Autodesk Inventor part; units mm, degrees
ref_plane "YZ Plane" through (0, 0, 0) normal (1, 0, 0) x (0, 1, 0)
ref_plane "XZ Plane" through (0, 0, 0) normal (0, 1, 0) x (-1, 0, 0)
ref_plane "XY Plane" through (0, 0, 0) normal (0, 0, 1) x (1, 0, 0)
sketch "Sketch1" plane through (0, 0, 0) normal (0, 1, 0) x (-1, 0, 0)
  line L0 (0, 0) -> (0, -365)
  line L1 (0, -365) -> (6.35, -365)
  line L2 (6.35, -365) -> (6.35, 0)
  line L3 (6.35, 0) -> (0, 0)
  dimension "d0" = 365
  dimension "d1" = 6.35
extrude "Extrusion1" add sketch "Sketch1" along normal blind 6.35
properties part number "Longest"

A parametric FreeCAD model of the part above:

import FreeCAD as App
import Part
import Sketcher
from FreeCAD import Vector
Q = App.Units.Quantity

doc = App.newDocument("Part")
body = doc.addObject("PartDesign::Body", "Body")

sketch1 = doc.addObject("Sketcher::SketchObject", "Sketch")
body.addObject(sketch1)
sketch1.AttachmentSupport = (doc.XZ_Plane, [""])
sketch1.MapMode = "FlatFace"
sketch1.addGeometry(Part.LineSegment(Vector(-6, 0, 0), Vector(0, 0, 0)), False)
sketch1.addGeometry(Part.LineSegment(Vector(0, 0, 0), Vector(0, -365, 0)), False)
sketch1.addGeometry(Part.LineSegment(Vector(0, -365, 0), Vector(-6, -365, 0)), False)
sketch1.addGeometry(Part.LineSegment(Vector(-6, -365, 0), Vector(-6, 0, 0)), False)
sketch1.addConstraint(Sketcher.Constraint("Coincident", 0, 2, 1, 1))
sketch1.addConstraint(Sketcher.Constraint("Coincident", 1, 2, 2, 1))
sketch1.addConstraint(Sketcher.Constraint("Coincident", 2, 2, 3, 1))
sketch1.addConstraint(Sketcher.Constraint("Coincident", 3, 2, 0, 1))
sketch1.addConstraint(Sketcher.Constraint("Horizontal", 0))
sketch1.addConstraint(Sketcher.Constraint("Vertical", 1))
sketch1.addConstraint(Sketcher.Constraint("Horizontal", 2))
sketch1.addConstraint(Sketcher.Constraint("Vertical", 3))
sketch1.addConstraint(Sketcher.Constraint("Coincident", 0, 2, -1, 1))
sketch1.addConstraint(Sketcher.Constraint("DistanceY", 1, 2, 1, 1, Q("365 mm")))
sketch1.addConstraint(Sketcher.Constraint("DistanceX", 0, 1, 0, 2, Q("6.35 mm")))
pad1 = doc.addObject("PartDesign::Pad", "Pad")
body.addObject(pad1)
pad1.Profile = sketch1
pad1.Length = 6.35
pad1.Reversed = True

doc.recompute()
